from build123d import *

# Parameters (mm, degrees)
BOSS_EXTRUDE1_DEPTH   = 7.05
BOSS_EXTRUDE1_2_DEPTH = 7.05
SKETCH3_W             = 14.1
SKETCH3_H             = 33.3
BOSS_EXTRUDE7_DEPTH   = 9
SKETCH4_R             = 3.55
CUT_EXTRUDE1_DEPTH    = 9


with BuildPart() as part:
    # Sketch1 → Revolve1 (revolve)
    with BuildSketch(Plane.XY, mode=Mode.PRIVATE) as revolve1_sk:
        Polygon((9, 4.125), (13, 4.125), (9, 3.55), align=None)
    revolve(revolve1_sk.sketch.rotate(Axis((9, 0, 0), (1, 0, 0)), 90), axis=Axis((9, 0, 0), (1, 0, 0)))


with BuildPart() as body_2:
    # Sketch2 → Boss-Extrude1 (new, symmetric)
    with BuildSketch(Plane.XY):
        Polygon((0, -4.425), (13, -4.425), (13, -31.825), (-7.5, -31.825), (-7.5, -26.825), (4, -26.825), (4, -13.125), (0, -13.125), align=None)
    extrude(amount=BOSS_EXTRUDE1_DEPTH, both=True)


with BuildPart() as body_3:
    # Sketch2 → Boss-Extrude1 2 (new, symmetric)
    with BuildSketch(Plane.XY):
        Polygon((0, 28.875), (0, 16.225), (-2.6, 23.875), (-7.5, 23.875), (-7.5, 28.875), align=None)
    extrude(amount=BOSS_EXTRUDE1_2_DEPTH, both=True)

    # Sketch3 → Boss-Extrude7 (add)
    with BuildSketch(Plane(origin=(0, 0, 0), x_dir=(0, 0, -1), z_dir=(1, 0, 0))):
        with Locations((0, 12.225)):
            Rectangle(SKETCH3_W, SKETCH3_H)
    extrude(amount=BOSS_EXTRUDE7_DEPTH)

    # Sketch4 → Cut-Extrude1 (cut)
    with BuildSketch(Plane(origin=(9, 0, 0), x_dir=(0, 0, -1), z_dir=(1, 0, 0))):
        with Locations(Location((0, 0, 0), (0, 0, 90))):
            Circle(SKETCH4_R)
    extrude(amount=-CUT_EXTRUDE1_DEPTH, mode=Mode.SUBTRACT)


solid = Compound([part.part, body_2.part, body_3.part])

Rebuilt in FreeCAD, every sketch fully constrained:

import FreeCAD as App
import Part
import Sketcher

V = App.Vector


def add_polygon(sketch, points):
    """Adds a closed chain of lines whose ends are joined by coincident constraints."""
    first, n = sketch.GeometryCount, len(points)
    for a, b in zip(points, points[1:] + points[:1]):
        sketch.addGeometry(Part.LineSegment(App.Vector(*a, 0), App.Vector(*b, 0)), False)
    for i in range(n):
        sketch.addConstraint(Sketcher.Constraint("Coincident", first + i, 2, first + (i + 1) % n, 1))

doc = App.newDocument("Part")
body = doc.addObject("PartDesign::Body", "Body")

# Sketch on XY plane
sketch1 = doc.addObject("Sketcher::SketchObject", "Sketch")
body.addObject(sketch1)
sketch1.AttachmentSupport = (doc.XY_Plane, [""])
sketch1.MapMode = "FlatFace"
add_polygon(sketch1, [(13, 4.125), (9, 4.125), (9, 3.55)])  # lines 0-2
sketch1.addConstraint(Sketcher.Constraint("Horizontal", 0))
sketch1.addConstraint(Sketcher.Constraint("Vertical", 1))
sketch1.addConstraint(Sketcher.Constraint("DistanceX", 0, 2, 0, 1, 4.0))
sketch1.addConstraint(Sketcher.Constraint("DistanceX", -1, 1, 0, 2, 9.0))
sketch1.addConstraint(Sketcher.Constraint("DistanceY", 1, 2, 1, 1, 0.575))
sketch1.addConstraint(Sketcher.Constraint("DistanceY", -1, 1, 1, 2, 3.55))
revolution = doc.addObject("PartDesign::Revolution", "Revolution")
body.addObject(revolution)
revolution.Profile = sketch1
revolution.ReferenceAxis = (sketch1, ["H_Axis"])
revolution.Angle = 360
body2 = doc.addObject("PartDesign::Body", "Body001")

# Sketch on XY plane
sketch2 = doc.addObject("Sketcher::SketchObject", "Sketch001")
body2.addObject(sketch2)
sketch2.AttachmentSupport = (doc.getObject("XY_Plane001"), [""])
sketch2.MapMode = "FlatFace"
add_polygon(sketch2, [(13, -4.425), (0, -4.425), (0, -13.125), (4, -13.125), (4, -26.825), (-7.5, -26.825), (-7.5, -31.825), (13, -31.825)])  # lines 0-7
sketch2.addConstraint(Sketcher.Constraint("Horizontal", 0))
sketch2.addConstraint(Sketcher.Constraint("Vertical", 1))
sketch2.addConstraint(Sketcher.Constraint("Horizontal", 2))
sketch2.addConstraint(Sketcher.Constraint("Vertical", 3))
sketch2.addConstraint(Sketcher.Constraint("Horizontal", 4))
sketch2.addConstraint(Sketcher.Constraint("Vertical", 5))
sketch2.addConstraint(Sketcher.Constraint("Horizontal", 6))
sketch2.addConstraint(Sketcher.Constraint("Vertical", 7))
sketch2.addConstraint(Sketcher.Constraint("PointOnObject", 0, 2, -2))
sketch2.addConstraint(Sketcher.Constraint("DistanceX", 0, 2, 0, 1, 13.0))
sketch2.addConstraint(Sketcher.Constraint("DistanceX", 2, 1, 2, 2, 4.0))
sketch2.addConstraint(Sketcher.Constraint("DistanceY", 5, 2, 5, 1, 5.0))
sketch2.addConstraint(Sketcher.Constraint("DistanceX", 4, 2, 4, 1, 11.5))
sketch2.addConstraint(Sketcher.Constraint("DistanceY", 1, 2, 1, 1, 8.7))
sketch2.addConstraint(Sketcher.Constraint("DistanceY", 3, 2, 3, 1, 13.7))
sketch2.addConstraint(Sketcher.Constraint("DistanceY", 0, 2, -1, 1, 4.425))
pad1 = doc.addObject("PartDesign::Pad", "Pad")
body2.addObject(pad1)
pad1.Profile = sketch2
pad1.Length = 14.1
pad1.Midplane = True
body3 = doc.addObject("PartDesign::Body", "Body002")

# Sketch on XY plane
sketch3 = doc.addObject("Sketcher::SketchObject", "Sketch002")
body3.addObject(sketch3)
sketch3.AttachmentSupport = (doc.getObject("XY_Plane002"), [""])
sketch3.MapMode = "FlatFace"
add_polygon(sketch3, [(0, 16.225), (0, 28.875), (-7.5, 28.875), (-7.5, 23.875), (-2.6, 23.875)])  # lines 0-4
sketch3.addConstraint(Sketcher.Constraint("Vertical", 0))
sketch3.addConstraint(Sketcher.Constraint("Horizontal", 1))
sketch3.addConstraint(Sketcher.Constraint("Vertical", 2))
sketch3.addConstraint(Sketcher.Constraint("Horizontal", 3))
sketch3.addConstraint(Sketcher.Constraint("PointOnObject", 0, 2, -2))
sketch3.addConstraint(Sketcher.Constraint("DistanceY", 2, 2, 2, 1, 5.0))
sketch3.addConstraint(Sketcher.Constraint("DistanceX", 1, 2, 1, 1, 7.5))
sketch3.addConstraint(Sketcher.Constraint("DistanceX", 3, 1, 3, 2, 4.9))
sketch3.addConstraint(Sketcher.Constraint("DistanceY", 0, 1, 0, 2, 12.65))
sketch3.addConstraint(Sketcher.Constraint("DistanceY", -1, 1, 0, 2, 28.875))
pad2 = doc.addObject("PartDesign::Pad", "Pad001")
body3.addObject(pad2)
pad2.Profile = sketch3
pad2.Length = 14.1
pad2.Midplane = True

# Sketch on YZ plane
sketch4 = doc.addObject("Sketcher::SketchObject", "Sketch003")
body3.addObject(sketch4)
sketch4.AttachmentSupport = (doc.getObject("YZ_Plane002"), [""])
sketch4.MapMode = "FlatFace"
add_polygon(sketch4, [(28.875, 7.05), (-4.425, 7.05), (-4.425, -7.05), (28.875, -7.05)])  # lines 0-3
sketch4.addConstraint(Sketcher.Constraint("Horizontal", 0))
sketch4.addConstraint(Sketcher.Constraint("Vertical", 1))
sketch4.addConstraint(Sketcher.Constraint("Horizontal", 2))
sketch4.addConstraint(Sketcher.Constraint("Vertical", 3))
sketch4.addConstraint(Sketcher.Constraint("DistanceX", 0, 2, 0, 1, 33.3))
sketch4.addConstraint(Sketcher.Constraint("DistanceY", 1, 2, 1, 1, 14.1))
sketch4.addConstraint(Sketcher.Constraint("DistanceY", -1, 1, 0, 2, 7.05))
sketch4.addConstraint(Sketcher.Constraint("DistanceX", 0, 2, -1, 1, 4.425))
pad3 = doc.addObject("PartDesign::Pad", "Pad002")
body3.addObject(pad3)
pad3.Profile = sketch4
pad3.Length = 9

# Sketch on YZ plane
sketch5 = doc.addObject("Sketcher::SketchObject", "Sketch004")
body3.addObject(sketch5)
sketch5.AttachmentSupport = (doc.getObject("YZ_Plane002"), [""])
sketch5.MapMode = "FlatFace"
sketch5.AttachmentOffset = App.Placement(V(0, 0, 9), App.Rotation())
sketch5.addGeometry(Part.Circle(V(0, 0, 0), V(0, 0, 1), 3.55), False)
sketch5.addConstraint(Sketcher.Constraint("Coincident", 0, 3, -1, 1))
sketch5.addConstraint(Sketcher.Constraint("Diameter", 0, 7.1))
pocket1 = doc.addObject("PartDesign::Pocket", "Pocket")
body3.addObject(pocket1)
pocket1.Profile = sketch5
pocket1.Length = 9

doc.recompute()
